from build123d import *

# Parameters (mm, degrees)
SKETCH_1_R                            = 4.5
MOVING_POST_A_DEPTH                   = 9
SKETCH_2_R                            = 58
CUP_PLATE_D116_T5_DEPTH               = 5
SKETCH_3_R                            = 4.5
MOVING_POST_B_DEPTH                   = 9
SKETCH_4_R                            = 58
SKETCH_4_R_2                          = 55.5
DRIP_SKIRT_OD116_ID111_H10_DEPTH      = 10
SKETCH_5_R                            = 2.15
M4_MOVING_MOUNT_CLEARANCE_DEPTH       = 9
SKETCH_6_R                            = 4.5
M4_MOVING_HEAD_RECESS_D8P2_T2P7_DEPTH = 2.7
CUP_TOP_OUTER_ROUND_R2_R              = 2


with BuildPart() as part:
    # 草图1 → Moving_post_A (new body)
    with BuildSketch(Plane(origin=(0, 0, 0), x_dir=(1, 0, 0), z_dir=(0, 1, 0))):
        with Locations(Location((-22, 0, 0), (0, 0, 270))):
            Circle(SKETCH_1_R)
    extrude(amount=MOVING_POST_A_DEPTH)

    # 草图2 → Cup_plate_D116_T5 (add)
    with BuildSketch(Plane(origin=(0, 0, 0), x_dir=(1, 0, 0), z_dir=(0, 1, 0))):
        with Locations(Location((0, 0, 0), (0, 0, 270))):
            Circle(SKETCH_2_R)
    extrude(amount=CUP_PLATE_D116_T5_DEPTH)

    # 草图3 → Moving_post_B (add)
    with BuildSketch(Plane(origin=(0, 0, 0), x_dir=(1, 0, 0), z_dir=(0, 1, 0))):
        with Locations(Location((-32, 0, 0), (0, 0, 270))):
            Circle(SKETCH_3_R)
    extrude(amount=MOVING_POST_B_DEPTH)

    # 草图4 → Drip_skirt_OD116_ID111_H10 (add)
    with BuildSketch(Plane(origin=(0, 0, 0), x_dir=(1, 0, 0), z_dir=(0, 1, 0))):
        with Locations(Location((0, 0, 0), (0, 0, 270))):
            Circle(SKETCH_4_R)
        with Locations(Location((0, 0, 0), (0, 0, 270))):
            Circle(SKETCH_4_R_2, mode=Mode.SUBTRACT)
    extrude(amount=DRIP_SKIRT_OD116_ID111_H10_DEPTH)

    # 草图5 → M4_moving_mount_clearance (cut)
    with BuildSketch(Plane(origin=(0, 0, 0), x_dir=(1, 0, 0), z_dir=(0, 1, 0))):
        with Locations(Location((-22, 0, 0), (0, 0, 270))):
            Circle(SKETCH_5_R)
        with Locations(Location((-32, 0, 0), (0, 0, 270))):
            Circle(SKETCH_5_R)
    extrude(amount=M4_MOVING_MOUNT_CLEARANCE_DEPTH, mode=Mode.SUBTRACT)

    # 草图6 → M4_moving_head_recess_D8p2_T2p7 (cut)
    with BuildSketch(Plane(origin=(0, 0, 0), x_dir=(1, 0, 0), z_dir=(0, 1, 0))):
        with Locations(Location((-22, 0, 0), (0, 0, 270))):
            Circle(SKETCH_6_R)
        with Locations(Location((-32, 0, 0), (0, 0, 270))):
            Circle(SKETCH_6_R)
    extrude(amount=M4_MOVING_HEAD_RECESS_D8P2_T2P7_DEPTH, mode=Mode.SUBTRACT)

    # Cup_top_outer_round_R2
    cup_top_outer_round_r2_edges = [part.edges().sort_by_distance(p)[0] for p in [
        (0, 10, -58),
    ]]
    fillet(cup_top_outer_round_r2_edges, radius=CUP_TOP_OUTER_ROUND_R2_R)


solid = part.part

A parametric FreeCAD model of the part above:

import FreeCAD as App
import Part
import Sketcher

V = App.Vector
Q = App.Units.Quantity


def edges_at(feature, points):
    """Names of the edges that pass closest to the given points."""
    edges = feature.Shape.Edges
    near = lambda p: min(range(len(edges)), key=lambda i: edges[i].distToShape(Part.Vertex(*p))[0])
    return sorted({f"Edge{near(p) + 1}" for p in points})

doc = App.newDocument("Part")
body = doc.addObject("PartDesign::Body", "Body")

sketch1 = body.newObject("Sketcher::SketchObject", "Sketch")
sketch1.AttachmentSupport = (doc.getObject("XZ_Plane"), [""])
sketch1.MapMode = "FlatFace"
sketch1.addGeometry(Part.Circle(V(-22, 0, 0), V(0, 0, 1), 4.5), False)
sketch1.addConstraint([
    Sketcher.Constraint("PointOnObject", 0, 3, -1),
    Sketcher.Constraint("Diameter", 0, Q("9 mm")),
    Sketcher.Constraint("DistanceX", 0, 3, -1, 1, Q("22 mm")),
])
pad1 = body.newObject("PartDesign::Pad", "Pad")
pad1.Profile = sketch1
pad1.Length = 9
pad1.Reversed = True

sketch2 = body.newObject("Sketcher::SketchObject", "Sketch001")
sketch2.AttachmentSupport = (doc.getObject("XZ_Plane"), [""])
sketch2.MapMode = "FlatFace"
sketch2.addGeometry(Part.Circle(V(0, 0, 0), V(0, 0, 1), 58), False)
sketch2.addConstraint([
    Sketcher.Constraint("Coincident", 0, 3, -1, 1),
    Sketcher.Constraint("Diameter", 0, Q("116 mm")),
])
pad2 = body.newObject("PartDesign::Pad", "Pad001")
pad2.Profile = sketch2
pad2.Length = 5
pad2.Reversed = True

sketch3 = body.newObject("Sketcher::SketchObject", "Sketch002")
sketch3.AttachmentSupport = (doc.getObject("XZ_Plane"), [""])
sketch3.MapMode = "FlatFace"
sketch3.addGeometry(Part.Circle(V(-32, 0, 0), V(0, 0, 1), 4.5), False)
sketch3.addConstraint([
    Sketcher.Constraint("PointOnObject", 0, 3, -1),
    Sketcher.Constraint("Diameter", 0, Q("9 mm")),
    Sketcher.Constraint("DistanceX", 0, 3, -1, 1, Q("32 mm")),
])
pad3 = body.newObject("PartDesign::Pad", "Pad002")
pad3.Profile = sketch3
pad3.Length = 9
pad3.Reversed = True

sketch4 = body.newObject("Sketcher::SketchObject", "Sketch003")
sketch4.AttachmentSupport = (doc.getObject("XZ_Plane"), [""])
sketch4.MapMode = "FlatFace"
sketch4.addGeometry([
    Part.Circle(V(0, 0, 0), V(0, 0, 1), 58),
    Part.Circle(V(0, 0, 0), V(0, 0, 1), 56),
], False)
sketch4.addConstraint([
    Sketcher.Constraint("Coincident", 0, 3, -1, 1),
    Sketcher.Constraint("Coincident", 1, 3, -1, 1),
    Sketcher.Constraint("Diameter", 0, Q("116 mm")),
    Sketcher.Constraint("Diameter", 1, Q("111 mm")),
])
pad4 = body.newObject("PartDesign::Pad", "Pad003")
pad4.Profile = sketch4
pad4.Length = 10
pad4.Reversed = True

sketch5 = body.newObject("Sketcher::SketchObject", "Sketch004")
sketch5.AttachmentSupport = (doc.getObject("XZ_Plane"), [""])
sketch5.MapMode = "FlatFace"
sketch5.addGeometry([
    Part.Circle(V(-22, 0, 0), V(0, 0, 1), 2.1),
    Part.Circle(V(-32, 0, 0), V(0, 0, 1), 2.1),
], False)
sketch5.addConstraint([
    Sketcher.Constraint("Equal", 0, 1),
    Sketcher.Constraint("PointOnObject", 0, 3, -1),
    Sketcher.Constraint("PointOnObject", 1, 3, -1),
    Sketcher.Constraint("Diameter", 0, Q("4.3 mm")),
    Sketcher.Constraint("DistanceX", 0, 3, -1, 1, Q("22 mm")),
    Sketcher.Constraint("DistanceX", 1, 3, -1, 1, Q("32 mm")),
])
pocket1 = body.newObject("PartDesign::Pocket", "Pocket")
pocket1.Profile = sketch5
pocket1.Length = 9

sketch6 = body.newObject("Sketcher::SketchObject", "Sketch005")
sketch6.AttachmentSupport = (doc.getObject("XZ_Plane"), [""])
sketch6.MapMode = "FlatFace"
sketch6.addGeometry([
    Part.Circle(V(-22, 0, 0), V(0, 0, 1), 4.5),
    Part.Circle(V(-32, 0, 0), V(0, 0, 1), 4.5),
], False)
sketch6.addConstraint([
    Sketcher.Constraint("Equal", 0, 1),
    Sketcher.Constraint("PointOnObject", 0, 3, -1),
    Sketcher.Constraint("PointOnObject", 1, 3, -1),
    Sketcher.Constraint("Diameter", 0, Q("9 mm")),
    Sketcher.Constraint("DistanceX", 0, 3, -1, 1, Q("22 mm")),
    Sketcher.Constraint("DistanceX", 1, 3, -1, 1, Q("32 mm")),
])
pocket2 = body.newObject("PartDesign::Pocket", "Pocket001")
pocket2.Profile = sketch6
pocket2.Length = 2.7
doc.recompute()

fillet = body.newObject("PartDesign::Fillet", "Fillet")
fillet.Base = (pocket2, edges_at(pocket2, [(0, 10, -58)]))
fillet.Radius = 2

doc.recompute()
